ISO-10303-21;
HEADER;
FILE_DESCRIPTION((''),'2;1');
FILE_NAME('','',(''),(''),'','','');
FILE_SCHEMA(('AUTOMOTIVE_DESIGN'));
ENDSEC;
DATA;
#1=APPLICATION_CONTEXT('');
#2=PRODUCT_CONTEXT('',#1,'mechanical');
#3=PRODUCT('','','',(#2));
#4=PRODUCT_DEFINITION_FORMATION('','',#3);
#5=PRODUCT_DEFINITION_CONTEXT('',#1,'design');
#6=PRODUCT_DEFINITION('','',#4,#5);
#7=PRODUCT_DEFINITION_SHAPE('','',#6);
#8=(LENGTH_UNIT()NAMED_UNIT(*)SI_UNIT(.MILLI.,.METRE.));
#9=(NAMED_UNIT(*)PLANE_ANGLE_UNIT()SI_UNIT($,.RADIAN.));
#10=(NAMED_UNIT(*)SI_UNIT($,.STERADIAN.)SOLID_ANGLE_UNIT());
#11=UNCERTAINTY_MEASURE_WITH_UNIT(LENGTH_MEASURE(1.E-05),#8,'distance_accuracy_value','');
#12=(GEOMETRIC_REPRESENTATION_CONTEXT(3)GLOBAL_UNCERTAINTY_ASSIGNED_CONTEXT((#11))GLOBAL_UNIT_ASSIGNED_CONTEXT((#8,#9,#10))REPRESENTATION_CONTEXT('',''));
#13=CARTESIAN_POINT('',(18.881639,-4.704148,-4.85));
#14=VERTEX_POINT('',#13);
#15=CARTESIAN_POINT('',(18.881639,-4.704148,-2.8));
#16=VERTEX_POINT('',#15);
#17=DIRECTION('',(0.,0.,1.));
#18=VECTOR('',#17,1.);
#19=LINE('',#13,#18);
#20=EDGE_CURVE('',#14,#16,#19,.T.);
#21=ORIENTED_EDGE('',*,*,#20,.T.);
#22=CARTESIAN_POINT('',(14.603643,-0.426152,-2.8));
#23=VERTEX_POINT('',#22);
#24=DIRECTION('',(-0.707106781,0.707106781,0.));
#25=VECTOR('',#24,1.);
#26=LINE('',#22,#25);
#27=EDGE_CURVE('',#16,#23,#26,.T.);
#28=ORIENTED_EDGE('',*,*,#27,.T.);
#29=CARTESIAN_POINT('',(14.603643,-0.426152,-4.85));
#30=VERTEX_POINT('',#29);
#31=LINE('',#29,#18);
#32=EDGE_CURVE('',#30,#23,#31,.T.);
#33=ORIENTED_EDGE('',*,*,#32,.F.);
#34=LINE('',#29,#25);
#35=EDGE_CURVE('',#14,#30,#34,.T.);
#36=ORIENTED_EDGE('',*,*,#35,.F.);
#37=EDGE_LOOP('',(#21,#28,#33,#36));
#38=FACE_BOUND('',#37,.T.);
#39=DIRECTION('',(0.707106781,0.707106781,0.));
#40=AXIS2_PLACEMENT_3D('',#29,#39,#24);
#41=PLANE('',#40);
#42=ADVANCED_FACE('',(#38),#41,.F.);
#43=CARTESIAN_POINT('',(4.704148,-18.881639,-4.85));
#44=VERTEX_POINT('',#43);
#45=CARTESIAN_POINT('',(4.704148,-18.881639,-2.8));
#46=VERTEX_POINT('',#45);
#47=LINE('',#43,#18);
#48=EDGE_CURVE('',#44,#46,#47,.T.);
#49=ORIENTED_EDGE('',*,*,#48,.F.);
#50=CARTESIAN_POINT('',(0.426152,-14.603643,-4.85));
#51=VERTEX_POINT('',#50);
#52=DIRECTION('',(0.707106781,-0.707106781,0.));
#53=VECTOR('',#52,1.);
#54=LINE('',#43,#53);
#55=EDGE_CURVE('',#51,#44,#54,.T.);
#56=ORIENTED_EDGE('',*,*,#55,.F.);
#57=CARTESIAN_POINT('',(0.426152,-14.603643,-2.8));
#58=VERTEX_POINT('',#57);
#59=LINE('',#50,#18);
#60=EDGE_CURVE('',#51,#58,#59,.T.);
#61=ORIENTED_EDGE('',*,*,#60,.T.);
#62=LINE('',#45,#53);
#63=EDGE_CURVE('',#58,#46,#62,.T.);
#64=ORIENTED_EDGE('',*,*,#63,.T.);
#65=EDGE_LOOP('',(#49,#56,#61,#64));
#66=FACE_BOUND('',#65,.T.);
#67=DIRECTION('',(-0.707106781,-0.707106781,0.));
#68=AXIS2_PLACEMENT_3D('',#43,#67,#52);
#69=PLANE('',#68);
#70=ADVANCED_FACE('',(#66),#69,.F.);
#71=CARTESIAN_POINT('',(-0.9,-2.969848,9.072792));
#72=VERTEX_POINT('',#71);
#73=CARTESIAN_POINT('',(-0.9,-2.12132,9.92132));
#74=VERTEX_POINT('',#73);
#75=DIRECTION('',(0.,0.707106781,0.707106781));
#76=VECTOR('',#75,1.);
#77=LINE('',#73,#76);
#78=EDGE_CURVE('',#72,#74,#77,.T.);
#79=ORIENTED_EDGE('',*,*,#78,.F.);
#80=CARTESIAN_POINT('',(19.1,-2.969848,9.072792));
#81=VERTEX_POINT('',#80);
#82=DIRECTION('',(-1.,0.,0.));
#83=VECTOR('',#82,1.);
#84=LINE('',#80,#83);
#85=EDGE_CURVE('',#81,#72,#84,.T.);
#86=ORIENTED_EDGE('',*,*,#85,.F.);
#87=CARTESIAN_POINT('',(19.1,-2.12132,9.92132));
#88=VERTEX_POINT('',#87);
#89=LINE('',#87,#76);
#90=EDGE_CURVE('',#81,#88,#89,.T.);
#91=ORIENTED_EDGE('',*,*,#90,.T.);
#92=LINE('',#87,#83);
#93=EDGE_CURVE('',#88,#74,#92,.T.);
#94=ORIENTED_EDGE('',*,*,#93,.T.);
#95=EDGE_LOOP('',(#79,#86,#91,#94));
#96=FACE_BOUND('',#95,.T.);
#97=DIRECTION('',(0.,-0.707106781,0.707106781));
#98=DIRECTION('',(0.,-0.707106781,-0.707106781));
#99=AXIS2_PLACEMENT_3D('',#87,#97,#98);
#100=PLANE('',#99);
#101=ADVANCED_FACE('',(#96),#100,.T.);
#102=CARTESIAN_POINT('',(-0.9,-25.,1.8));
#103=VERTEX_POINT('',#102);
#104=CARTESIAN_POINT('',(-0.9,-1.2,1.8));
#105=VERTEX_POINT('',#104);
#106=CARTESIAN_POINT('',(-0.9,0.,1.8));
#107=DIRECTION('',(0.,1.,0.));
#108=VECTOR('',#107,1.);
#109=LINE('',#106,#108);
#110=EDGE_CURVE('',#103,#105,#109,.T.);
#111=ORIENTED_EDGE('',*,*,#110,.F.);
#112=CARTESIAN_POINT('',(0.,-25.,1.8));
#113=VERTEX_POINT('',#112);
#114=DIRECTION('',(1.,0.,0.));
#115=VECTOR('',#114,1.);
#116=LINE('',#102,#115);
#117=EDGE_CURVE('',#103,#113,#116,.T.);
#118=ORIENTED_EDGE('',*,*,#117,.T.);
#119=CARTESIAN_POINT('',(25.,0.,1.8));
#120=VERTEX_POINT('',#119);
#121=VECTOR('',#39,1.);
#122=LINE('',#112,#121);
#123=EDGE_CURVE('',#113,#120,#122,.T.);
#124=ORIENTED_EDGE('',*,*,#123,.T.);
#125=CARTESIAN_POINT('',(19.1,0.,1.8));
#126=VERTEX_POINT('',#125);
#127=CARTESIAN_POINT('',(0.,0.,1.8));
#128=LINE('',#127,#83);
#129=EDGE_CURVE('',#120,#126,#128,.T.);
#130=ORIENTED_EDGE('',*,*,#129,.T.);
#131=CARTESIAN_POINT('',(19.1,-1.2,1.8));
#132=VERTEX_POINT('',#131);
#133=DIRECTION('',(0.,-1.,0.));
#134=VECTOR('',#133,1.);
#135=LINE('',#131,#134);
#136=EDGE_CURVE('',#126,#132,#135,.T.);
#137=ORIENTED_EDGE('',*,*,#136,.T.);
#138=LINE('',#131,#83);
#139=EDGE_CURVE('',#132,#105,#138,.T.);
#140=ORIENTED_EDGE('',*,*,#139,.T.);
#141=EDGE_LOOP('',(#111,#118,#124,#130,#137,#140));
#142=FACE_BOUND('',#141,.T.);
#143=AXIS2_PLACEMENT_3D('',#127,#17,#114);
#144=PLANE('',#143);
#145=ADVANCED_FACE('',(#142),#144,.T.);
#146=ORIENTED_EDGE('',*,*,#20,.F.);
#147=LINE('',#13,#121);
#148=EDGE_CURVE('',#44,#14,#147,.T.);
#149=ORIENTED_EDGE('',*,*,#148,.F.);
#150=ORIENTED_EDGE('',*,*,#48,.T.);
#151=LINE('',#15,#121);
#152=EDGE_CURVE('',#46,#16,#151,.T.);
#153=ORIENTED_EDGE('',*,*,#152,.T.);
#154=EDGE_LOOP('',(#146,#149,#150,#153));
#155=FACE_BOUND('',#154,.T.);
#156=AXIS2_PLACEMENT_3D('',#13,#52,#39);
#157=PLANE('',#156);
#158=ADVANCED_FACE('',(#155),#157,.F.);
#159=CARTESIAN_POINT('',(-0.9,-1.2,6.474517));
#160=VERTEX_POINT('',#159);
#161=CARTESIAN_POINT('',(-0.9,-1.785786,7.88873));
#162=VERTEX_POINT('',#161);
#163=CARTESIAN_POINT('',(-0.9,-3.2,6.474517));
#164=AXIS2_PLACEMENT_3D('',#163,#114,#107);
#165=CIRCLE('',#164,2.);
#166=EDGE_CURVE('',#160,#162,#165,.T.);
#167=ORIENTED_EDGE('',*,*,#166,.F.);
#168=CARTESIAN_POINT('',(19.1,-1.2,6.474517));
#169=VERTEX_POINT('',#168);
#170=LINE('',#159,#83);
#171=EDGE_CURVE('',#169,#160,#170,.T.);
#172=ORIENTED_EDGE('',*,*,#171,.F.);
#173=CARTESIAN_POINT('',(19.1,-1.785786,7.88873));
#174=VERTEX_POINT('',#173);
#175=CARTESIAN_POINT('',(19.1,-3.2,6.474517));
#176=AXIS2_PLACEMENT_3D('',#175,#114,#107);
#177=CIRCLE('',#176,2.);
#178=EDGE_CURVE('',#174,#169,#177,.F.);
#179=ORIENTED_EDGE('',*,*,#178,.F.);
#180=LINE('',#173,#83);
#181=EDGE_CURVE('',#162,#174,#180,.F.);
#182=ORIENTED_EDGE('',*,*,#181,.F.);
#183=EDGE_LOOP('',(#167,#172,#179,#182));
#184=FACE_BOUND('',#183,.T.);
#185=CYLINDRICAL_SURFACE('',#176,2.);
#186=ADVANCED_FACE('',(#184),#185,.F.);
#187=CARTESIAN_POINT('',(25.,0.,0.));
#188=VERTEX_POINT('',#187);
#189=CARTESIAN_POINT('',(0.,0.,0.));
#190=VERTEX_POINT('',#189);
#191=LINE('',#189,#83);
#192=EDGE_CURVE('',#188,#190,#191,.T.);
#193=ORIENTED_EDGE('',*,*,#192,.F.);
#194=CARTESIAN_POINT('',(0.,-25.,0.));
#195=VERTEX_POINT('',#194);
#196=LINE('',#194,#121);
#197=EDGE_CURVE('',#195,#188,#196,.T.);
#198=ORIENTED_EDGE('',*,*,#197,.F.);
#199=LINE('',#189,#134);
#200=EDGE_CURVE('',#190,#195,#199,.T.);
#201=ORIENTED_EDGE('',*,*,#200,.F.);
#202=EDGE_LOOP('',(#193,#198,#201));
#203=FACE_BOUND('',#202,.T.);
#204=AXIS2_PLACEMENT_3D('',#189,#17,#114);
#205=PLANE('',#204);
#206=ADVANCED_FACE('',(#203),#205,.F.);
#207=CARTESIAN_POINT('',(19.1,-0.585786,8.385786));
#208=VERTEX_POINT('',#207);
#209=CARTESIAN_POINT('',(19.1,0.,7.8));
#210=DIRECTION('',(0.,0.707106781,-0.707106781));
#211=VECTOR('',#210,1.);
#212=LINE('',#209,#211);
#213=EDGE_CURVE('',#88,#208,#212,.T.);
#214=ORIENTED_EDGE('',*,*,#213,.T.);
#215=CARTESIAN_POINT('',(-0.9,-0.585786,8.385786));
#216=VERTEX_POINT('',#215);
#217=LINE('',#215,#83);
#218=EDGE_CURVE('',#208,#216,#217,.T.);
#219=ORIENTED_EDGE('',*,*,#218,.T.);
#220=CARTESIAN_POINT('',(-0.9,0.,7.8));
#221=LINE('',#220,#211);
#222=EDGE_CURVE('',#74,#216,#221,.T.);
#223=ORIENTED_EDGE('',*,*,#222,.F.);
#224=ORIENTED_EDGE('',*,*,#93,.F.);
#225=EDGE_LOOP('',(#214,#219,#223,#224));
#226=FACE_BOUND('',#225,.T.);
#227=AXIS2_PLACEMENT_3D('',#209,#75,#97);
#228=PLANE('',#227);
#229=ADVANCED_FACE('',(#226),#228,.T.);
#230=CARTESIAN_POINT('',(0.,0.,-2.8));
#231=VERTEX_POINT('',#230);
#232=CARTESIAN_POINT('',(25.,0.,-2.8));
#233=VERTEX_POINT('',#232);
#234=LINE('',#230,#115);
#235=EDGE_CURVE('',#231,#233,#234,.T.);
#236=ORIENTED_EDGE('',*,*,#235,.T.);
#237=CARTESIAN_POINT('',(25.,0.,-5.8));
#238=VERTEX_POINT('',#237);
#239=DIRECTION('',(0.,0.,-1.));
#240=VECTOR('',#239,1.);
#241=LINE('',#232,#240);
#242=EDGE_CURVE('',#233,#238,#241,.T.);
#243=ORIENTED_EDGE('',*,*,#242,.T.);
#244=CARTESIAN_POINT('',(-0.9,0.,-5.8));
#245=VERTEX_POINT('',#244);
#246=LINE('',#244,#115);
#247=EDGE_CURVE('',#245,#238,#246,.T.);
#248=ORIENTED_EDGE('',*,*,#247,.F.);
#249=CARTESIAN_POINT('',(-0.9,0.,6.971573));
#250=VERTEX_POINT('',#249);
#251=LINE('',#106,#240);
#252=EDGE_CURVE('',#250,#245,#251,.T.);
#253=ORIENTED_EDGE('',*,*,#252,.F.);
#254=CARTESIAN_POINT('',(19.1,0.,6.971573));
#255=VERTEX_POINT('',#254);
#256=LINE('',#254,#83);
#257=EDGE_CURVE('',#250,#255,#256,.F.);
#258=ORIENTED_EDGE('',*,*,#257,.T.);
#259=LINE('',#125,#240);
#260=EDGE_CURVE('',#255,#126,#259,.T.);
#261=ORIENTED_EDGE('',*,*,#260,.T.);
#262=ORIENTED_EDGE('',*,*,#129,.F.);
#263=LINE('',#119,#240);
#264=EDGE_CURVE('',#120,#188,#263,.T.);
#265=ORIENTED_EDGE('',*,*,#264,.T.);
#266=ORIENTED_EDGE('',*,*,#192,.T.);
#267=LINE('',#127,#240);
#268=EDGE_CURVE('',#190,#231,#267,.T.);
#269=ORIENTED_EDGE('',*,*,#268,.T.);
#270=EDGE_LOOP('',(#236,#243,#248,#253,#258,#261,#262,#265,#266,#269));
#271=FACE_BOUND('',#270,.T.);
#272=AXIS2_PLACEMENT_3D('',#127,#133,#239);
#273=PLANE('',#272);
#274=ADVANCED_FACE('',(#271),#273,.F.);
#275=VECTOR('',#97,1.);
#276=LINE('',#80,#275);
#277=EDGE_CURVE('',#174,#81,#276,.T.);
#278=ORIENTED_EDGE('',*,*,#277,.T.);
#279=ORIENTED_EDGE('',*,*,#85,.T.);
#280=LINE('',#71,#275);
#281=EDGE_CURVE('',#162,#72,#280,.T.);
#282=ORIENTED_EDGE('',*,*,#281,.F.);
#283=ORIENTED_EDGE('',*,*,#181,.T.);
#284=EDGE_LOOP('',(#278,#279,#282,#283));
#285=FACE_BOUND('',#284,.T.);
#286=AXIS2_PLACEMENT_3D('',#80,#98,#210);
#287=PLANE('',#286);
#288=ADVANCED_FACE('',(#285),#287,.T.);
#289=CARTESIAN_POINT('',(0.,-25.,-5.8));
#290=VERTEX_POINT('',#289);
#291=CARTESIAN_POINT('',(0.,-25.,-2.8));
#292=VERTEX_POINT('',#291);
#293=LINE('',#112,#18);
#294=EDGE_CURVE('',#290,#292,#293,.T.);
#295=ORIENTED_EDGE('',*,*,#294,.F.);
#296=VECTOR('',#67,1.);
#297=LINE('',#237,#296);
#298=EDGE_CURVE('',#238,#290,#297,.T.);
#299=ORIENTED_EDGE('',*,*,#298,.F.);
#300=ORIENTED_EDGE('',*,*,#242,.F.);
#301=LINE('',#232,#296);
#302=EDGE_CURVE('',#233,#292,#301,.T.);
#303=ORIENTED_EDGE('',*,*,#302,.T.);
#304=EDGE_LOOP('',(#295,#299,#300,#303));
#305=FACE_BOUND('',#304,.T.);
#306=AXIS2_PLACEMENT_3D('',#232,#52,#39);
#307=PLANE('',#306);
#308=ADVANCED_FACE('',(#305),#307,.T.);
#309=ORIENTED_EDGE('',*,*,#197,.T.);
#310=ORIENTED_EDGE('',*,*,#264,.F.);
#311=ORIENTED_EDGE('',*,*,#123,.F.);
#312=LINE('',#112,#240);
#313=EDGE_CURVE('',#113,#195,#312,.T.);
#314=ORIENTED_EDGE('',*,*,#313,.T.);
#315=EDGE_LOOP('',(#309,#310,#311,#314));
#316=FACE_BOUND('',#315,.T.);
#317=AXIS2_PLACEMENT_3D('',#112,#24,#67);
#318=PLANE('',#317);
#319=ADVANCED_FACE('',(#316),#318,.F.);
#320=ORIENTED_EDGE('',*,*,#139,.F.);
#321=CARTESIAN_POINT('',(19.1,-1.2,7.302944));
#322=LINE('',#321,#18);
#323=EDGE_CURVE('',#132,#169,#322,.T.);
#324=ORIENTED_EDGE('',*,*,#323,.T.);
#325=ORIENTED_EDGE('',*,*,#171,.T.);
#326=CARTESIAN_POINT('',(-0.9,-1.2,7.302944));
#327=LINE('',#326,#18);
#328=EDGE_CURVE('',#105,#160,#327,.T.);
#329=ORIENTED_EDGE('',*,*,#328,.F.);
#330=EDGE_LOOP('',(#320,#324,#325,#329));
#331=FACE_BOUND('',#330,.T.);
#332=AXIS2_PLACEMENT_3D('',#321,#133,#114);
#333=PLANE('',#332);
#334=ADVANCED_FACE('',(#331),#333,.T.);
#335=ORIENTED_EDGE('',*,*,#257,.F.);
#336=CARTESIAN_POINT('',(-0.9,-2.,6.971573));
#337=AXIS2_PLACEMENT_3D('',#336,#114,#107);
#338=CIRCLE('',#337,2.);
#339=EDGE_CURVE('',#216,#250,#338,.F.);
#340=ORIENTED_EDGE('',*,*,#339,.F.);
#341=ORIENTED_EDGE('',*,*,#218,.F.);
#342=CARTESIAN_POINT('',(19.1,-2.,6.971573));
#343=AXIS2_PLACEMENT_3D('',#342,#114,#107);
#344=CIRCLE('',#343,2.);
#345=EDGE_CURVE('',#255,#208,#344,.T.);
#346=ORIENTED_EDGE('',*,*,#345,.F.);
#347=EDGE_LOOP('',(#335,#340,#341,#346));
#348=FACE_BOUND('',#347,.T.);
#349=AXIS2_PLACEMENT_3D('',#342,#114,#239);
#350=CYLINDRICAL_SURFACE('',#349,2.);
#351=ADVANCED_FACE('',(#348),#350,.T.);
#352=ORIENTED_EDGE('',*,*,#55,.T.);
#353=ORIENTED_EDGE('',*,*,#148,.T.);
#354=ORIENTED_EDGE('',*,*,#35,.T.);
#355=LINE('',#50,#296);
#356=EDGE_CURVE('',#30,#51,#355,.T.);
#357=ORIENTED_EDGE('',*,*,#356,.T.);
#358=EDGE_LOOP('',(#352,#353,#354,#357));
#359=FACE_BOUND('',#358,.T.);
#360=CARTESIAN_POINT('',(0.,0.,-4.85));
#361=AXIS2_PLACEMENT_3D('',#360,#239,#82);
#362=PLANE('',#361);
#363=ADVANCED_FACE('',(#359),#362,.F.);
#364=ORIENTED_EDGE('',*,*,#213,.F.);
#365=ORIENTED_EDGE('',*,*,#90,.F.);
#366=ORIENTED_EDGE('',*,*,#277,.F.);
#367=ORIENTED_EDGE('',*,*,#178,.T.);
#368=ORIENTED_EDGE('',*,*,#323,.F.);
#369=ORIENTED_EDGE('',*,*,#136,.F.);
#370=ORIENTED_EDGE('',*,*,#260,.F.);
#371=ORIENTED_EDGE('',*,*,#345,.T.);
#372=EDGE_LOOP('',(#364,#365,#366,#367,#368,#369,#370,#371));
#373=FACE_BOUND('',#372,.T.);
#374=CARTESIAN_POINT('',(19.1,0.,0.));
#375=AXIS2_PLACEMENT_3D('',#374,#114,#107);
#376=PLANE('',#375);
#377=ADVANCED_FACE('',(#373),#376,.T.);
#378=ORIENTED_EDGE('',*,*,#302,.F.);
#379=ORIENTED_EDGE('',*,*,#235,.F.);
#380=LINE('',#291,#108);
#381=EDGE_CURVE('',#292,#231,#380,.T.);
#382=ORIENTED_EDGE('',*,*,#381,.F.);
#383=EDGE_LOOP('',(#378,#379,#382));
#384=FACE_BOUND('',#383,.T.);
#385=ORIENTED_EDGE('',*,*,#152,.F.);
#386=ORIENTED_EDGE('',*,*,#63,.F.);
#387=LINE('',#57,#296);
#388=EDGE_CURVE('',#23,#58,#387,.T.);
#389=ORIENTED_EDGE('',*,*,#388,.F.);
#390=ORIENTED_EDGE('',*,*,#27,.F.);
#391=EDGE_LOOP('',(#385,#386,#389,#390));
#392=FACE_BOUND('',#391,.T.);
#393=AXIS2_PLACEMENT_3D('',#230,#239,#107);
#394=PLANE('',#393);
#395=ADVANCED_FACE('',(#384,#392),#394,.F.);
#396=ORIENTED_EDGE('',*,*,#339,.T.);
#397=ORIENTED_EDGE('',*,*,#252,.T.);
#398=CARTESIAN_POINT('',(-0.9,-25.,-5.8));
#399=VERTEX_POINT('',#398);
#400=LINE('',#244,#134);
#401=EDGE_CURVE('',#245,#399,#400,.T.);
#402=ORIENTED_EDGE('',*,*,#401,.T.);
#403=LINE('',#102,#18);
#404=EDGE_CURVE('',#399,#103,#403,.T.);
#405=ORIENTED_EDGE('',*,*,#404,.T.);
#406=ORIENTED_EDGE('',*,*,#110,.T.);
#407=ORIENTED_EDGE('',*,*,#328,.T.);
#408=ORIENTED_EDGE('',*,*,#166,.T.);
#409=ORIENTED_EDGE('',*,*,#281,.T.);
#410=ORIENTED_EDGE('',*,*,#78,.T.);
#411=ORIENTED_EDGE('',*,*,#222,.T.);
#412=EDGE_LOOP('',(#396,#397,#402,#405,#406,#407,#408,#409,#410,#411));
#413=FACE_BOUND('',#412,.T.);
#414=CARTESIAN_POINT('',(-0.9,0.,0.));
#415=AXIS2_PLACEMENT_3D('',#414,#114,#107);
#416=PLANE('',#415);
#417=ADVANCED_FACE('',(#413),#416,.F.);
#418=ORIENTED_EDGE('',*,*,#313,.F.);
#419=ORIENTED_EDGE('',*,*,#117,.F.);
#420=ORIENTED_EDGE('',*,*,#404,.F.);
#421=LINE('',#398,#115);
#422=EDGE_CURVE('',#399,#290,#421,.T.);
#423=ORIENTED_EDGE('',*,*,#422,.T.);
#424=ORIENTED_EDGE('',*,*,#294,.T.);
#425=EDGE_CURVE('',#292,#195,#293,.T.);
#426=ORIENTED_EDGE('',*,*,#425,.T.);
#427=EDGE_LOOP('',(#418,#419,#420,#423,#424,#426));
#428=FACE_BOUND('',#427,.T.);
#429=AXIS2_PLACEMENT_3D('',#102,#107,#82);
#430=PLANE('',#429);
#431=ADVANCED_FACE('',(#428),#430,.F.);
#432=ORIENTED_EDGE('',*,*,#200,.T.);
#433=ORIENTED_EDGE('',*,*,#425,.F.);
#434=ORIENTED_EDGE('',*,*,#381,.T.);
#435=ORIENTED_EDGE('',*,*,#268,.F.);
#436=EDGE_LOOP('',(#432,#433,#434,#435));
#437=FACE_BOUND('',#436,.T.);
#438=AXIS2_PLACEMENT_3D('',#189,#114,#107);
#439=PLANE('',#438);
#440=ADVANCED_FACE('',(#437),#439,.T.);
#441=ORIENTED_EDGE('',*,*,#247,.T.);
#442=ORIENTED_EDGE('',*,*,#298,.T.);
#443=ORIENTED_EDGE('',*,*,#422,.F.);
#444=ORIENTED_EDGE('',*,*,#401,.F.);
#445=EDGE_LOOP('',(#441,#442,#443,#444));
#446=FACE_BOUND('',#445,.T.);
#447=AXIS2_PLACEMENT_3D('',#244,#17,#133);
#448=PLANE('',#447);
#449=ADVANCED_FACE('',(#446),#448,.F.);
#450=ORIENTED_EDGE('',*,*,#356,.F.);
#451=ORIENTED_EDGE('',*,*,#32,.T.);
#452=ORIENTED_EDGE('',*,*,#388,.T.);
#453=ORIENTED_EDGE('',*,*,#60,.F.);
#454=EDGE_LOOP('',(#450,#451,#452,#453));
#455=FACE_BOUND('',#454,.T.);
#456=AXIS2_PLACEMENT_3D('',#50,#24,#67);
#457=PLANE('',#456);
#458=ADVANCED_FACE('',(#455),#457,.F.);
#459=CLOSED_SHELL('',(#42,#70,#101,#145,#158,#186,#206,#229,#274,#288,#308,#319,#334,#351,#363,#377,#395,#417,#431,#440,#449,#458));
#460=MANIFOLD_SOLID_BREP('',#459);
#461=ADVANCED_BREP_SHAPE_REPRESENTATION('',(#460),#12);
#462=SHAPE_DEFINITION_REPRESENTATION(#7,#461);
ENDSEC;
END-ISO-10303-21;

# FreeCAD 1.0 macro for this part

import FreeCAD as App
import Part
import Sketcher
Q = App.Units.Quantity


def edges_at(feature, points):
    """Names of the edges that pass closest to the given points."""
    edges = feature.Shape.Edges
    near = lambda p: min(range(len(edges)), key=lambda i: edges[i].distToShape(Part.Vertex(*p))[0])
    return sorted({f"Edge{near(p) + 1}" for p in points})


def add_polygon(sketch, points):
    """Adds a closed chain of lines whose ends are joined by coincident constraints."""
    first, n = sketch.GeometryCount, len(points)
    for a, b in zip(points, points[1:] + points[:1]):
        sketch.addGeometry(Part.LineSegment(App.Vector(*a, 0), App.Vector(*b, 0)), False)
    for i in range(n):
        sketch.addConstraint(Sketcher.Constraint("Coincident", first + i, 2, first + (i + 1) % n, 1))

doc = App.newDocument("Part")
body = doc.addObject("PartDesign::Body", "Body")

# Sketch on XY plane
sketch1 = doc.addObject("Sketcher::SketchObject", "Sketch")
body.addObject(sketch1)
sketch1.AttachmentSupport = (doc.XY_Plane, [""])
sketch1.MapMode = "FlatFace"
add_polygon(sketch1, [(25, 0), (0, 0), (0, -25)])  # lines 0-2
sketch1.addConstraint([
    Sketcher.Constraint("Horizontal", 0),
    Sketcher.Constraint("Vertical", 1),
    Sketcher.Constraint("Coincident", 0, 2, -1, 1),
    Sketcher.Constraint("Equal", 0, 1),
    Sketcher.Constraint("DistanceX", 0, 2, 0, 1, 25.0),
])
pad1 = doc.addObject("PartDesign::Pad", "Pad")
body.addObject(pad1)
pad1.Profile = sketch1
pad1.Length = 1.8

# Sketch on YZ plane
sketch2 = doc.addObject("Sketcher::SketchObject", "Sketch001")
body.addObject(sketch2)
sketch2.AttachmentSupport = (doc.YZ_Plane, [""])
sketch2.MapMode = "FlatFace"
add_polygon(sketch2, [(0, -6), (-25, -6), (-25, 2), (0, 2)])  # lines 0-3
sketch2.addConstraint([
    Sketcher.Constraint("Horizontal", 0),
    Sketcher.Constraint("Vertical", 1),
    Sketcher.Constraint("Horizontal", 2),
    Sketcher.Constraint("Vertical", 3),
    Sketcher.Constraint("PointOnObject", 2, 2, -2),
    Sketcher.Constraint("DistanceX", 0, 2, 0, 1, 25.0),
    Sketcher.Constraint("DistanceY", 1, 1, 1, 2, 7.6),
    Sketcher.Constraint("DistanceY", 0, 2, -1, 1, 5.8),
])
pad2 = doc.addObject("PartDesign::Pad", "Pad001")
body.addObject(pad2)
pad2.Profile = sketch2
pad2.Length = 0.9
pad2.Reversed = True

# Sketch on XY plane
sketch3 = doc.addObject("Sketcher::SketchObject", "Sketch002")
body.addObject(sketch3)
sketch3.AttachmentSupport = (doc.XY_Plane, [""])
sketch3.MapMode = "FlatFace"
sketch3.AttachmentOffset = App.Placement(App.Vector(0, 0, -5.8), App.Rotation())
add_polygon(sketch3, [(0, 0), (25, 0), (0, -25)])  # lines 0-2
sketch3.addConstraint([
    Sketcher.Constraint("Horizontal", 0),
    Sketcher.Constraint("Vertical", 2),
    Sketcher.Constraint("Coincident", 2, 2, -1, 1),
    Sketcher.Constraint("Equal", 0, 2),
    Sketcher.Constraint("DistanceX", 0, 1, 0, 2, 25.0),
])
pad3 = doc.addObject("PartDesign::Pad", "Pad002")
body.addObject(pad3)
pad3.Profile = sketch3
pad3.Length = 3

# Sketch on XY plane
sketch4 = doc.addObject("Sketcher::SketchObject", "Sketch003")
body.addObject(sketch4)
sketch4.AttachmentSupport = (doc.XY_Plane, [""])
sketch4.MapMode = "FlatFace"
sketch4.AttachmentOffset = App.Placement(App.Vector(0, 0, -2.8), App.Rotation())
add_polygon(sketch4, [(5, -19), (19, -5), (15, 0), (0, -15)])  # lines 0-3
sketch4.addConstraint([
    Sketcher.Constraint("Perpendicular", 0, 1),
    Sketcher.Constraint("Perpendicular", 1, 2),
    Sketcher.Constraint("Perpendicular", 2, 3),
    Sketcher.Constraint("Angle", 0, Q("45 deg")),
    Sketcher.Constraint("Distance", 0, 20.05),
    Sketcher.Constraint("Distance", 1, 6.05),
    Sketcher.Constraint("DistanceX", -1, 1, 0, 2, 18.881639),
    Sketcher.Constraint("DistanceY", 1, 2, -1, 1, 0.426152),
])
pocket1 = doc.addObject("PartDesign::Pocket", "Pocket")
body.addObject(pocket1)
pocket1.Profile = sketch4
pocket1.Length = 2.05

# Sketch on YZ plane
sketch5 = doc.addObject("Sketcher::SketchObject", "Sketch004")
body.addObject(sketch5)
sketch5.AttachmentSupport = (doc.YZ_Plane, [""])
sketch5.MapMode = "FlatFace"
sketch5.AttachmentOffset = App.Placement(App.Vector(0, 0, -0.9), App.Rotation())
add_polygon(sketch5, [(0, 7.8), (0, 1.8), (-1.2, 1.8), (-1.2, 7.3), (-3, 9.1), (-2.1, 9.9)])  # lines 0-5
sketch5.addConstraint([
    Sketcher.Constraint("Vertical", 0),
    Sketcher.Constraint("Horizontal", 1),
    Sketcher.Constraint("Vertical", 2),
    Sketcher.Constraint("PointOnObject", 0, 2, -2),
    Sketcher.Constraint("Perpendicular", 3, 4),
    Sketcher.Constraint("Perpendicular", 4, 5),
    Sketcher.Constraint("DistanceY", 0, 2, 0, 1, 6.0),
    Sketcher.Constraint("Angle", 3, Q("135 deg")),
    Sketcher.Constraint("Distance", 5, 3.0),
    Sketcher.Constraint("DistanceX", 1, 2, 1, 1, 1.2),
    Sketcher.Constraint("Distance", 4, 1.2),
    Sketcher.Constraint("DistanceY", -1, 1, 0, 2, 1.8),
])
pad4 = doc.addObject("PartDesign::Pad", "Pad003")
body.addObject(pad4)
pad4.Profile = sketch5
pad4.Length = 20
doc.recompute()

fillet = doc.addObject("PartDesign::Fillet", "Fillet")
body.addObject(fillet)
fillet.Base = (pad4, edges_at(pad4, [(9.1, 0, 7.8), (9.1, -1.2, 7.303)]))
fillet.Radius = 2

doc.recompute()
